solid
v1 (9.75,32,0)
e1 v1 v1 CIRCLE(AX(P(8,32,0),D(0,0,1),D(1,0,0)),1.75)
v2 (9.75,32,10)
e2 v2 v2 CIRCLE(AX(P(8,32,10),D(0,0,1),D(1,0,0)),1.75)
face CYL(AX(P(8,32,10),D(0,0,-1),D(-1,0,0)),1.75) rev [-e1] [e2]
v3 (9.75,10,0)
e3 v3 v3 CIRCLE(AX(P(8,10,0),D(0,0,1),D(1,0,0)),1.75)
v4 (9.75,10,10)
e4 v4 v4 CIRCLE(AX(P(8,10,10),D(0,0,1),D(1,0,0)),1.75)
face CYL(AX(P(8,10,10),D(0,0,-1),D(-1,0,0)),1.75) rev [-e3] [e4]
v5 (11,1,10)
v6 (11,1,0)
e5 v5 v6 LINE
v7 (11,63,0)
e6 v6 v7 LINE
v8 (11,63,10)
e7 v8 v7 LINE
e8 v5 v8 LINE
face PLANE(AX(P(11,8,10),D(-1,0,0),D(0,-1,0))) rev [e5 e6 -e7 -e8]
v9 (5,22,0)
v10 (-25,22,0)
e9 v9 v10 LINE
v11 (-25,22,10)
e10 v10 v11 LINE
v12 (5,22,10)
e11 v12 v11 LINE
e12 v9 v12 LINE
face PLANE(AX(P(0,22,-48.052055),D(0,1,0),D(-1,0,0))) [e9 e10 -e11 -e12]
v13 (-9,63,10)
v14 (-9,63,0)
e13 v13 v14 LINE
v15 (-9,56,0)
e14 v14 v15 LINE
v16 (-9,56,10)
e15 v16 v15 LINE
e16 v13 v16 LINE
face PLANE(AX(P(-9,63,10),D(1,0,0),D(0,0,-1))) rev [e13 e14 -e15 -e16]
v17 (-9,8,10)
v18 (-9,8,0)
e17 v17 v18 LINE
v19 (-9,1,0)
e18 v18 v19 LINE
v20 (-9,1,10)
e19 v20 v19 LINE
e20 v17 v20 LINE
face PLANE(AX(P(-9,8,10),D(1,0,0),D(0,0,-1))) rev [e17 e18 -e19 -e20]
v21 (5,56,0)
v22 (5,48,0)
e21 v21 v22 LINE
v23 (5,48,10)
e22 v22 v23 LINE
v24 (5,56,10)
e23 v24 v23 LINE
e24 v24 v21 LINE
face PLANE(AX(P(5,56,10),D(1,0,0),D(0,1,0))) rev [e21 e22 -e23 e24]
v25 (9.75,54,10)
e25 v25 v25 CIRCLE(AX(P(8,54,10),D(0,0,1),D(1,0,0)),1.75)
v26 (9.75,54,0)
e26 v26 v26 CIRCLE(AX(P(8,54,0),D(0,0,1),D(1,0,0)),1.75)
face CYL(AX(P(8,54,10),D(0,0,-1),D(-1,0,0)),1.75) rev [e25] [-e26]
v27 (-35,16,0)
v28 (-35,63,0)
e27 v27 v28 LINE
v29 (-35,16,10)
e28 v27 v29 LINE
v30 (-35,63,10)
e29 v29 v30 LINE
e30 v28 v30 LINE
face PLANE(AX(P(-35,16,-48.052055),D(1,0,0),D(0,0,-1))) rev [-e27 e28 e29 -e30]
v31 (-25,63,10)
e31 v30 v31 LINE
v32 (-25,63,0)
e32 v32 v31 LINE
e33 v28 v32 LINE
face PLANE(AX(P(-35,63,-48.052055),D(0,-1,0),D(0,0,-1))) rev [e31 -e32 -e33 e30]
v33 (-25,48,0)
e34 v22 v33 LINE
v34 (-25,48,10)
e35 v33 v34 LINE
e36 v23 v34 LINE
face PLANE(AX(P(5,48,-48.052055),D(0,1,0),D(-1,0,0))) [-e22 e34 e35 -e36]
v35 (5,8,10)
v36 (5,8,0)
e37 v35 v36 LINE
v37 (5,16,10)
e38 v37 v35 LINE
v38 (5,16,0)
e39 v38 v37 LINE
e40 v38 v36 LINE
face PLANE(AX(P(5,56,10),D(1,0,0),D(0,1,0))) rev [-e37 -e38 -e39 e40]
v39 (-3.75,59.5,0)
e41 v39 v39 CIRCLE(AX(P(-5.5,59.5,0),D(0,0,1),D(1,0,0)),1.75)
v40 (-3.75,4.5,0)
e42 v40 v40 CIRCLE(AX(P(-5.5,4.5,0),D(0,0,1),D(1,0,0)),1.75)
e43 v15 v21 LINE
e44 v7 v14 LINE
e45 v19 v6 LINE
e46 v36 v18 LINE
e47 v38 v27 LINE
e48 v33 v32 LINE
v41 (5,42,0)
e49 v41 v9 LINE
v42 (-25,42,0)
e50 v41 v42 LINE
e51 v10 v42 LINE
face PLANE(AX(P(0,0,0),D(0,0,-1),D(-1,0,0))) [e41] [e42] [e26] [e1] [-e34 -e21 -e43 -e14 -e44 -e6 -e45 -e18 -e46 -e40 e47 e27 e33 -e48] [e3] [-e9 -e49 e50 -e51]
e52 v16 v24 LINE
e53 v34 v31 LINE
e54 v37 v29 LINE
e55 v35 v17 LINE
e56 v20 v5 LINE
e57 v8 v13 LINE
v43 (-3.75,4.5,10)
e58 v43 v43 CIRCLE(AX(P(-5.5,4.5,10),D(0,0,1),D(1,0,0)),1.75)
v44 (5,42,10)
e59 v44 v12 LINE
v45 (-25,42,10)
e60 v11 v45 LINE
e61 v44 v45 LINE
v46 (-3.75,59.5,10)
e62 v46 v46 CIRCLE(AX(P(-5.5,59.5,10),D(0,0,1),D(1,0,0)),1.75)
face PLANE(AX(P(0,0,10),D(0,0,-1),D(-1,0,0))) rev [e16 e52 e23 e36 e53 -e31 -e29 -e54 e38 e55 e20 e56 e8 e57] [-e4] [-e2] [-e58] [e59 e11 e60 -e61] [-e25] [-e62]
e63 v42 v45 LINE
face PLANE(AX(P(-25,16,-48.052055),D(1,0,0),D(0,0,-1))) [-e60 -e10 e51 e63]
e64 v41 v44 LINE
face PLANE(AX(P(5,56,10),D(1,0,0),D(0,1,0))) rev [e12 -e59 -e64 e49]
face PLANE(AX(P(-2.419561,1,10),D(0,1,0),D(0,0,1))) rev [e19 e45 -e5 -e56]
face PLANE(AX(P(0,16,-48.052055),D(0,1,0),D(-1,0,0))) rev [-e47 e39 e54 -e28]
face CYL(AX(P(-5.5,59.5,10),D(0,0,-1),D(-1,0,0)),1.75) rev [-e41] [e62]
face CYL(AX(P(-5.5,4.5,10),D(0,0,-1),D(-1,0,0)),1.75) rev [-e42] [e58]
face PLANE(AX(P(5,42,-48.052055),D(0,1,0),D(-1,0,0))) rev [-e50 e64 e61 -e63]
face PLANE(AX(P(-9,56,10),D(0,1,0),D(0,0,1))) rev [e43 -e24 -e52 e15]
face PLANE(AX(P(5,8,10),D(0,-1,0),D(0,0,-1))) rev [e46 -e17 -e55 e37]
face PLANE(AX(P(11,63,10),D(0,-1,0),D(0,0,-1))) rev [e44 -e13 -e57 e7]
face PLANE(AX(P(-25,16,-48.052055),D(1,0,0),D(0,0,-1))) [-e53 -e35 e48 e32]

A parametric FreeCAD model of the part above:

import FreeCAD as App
import Part
import Sketcher


def add_polygon(sketch, points):
    """Adds a closed chain of lines whose ends are joined by coincident constraints."""
    first, n = sketch.GeometryCount, len(points)
    for a, b in zip(points, points[1:] + points[:1]):
        sketch.addGeometry(Part.LineSegment(App.Vector(*a, 0), App.Vector(*b, 0)), False)
    for i in range(n):
        sketch.addConstraint(Sketcher.Constraint("Coincident", first + i, 2, first + (i + 1) % n, 1))

doc = App.newDocument("Part")
body = doc.addObject("PartDesign::Body", "Body")

# Sketch on XY plane
sketch1 = doc.addObject("Sketcher::SketchObject", "Sketch")
body.addObject(sketch1)
sketch1.AttachmentSupport = (doc.XY_Plane, [""])
sketch1.MapMode = "FlatFace"
add_polygon(sketch1, [(11, 1), (11, 63), (-9, 63), (-9, 56), (5, 56), (5, 8), (-9, 8), (-9, 1)])  # lines 0-7
sketch1.addGeometry(Part.Circle(App.Vector(-5.5, 4.5, 0), App.Vector(0, 0, 1), 1.8), False)  # 8
sketch1.addGeometry(Part.Circle(App.Vector(8, 10, 0), App.Vector(0, 0, 1), 1.8), False)  # 9
sketch1.addGeometry(Part.Circle(App.Vector(-5.5, 59.5, 0), App.Vector(0, 0, 1), 1.8), False)  # 10
sketch1.addGeometry(Part.Circle(App.Vector(8, 32, 0), App.Vector(0, 0, 1), 1.8), False)  # 11
sketch1.addGeometry(Part.Circle(App.Vector(8, 54, 0), App.Vector(0, 0, 1), 1.8), False)  # 12
sketch1.addConstraint([
    Sketcher.Constraint("Vertical", 0),
    Sketcher.Constraint("Horizontal", 1),
    Sketcher.Constraint("Vertical", 2),
    Sketcher.Constraint("Horizontal", 3),
    Sketcher.Constraint("Vertical", 4),
    Sketcher.Constraint("Horizontal", 5),
    Sketcher.Constraint("Vertical", 6),
    Sketcher.Constraint("Horizontal", 7),
    Sketcher.Constraint("Equal", 8, 9),
    Sketcher.Constraint("Equal", 9, 10),
    Sketcher.Constraint("Equal", 10, 11),
    Sketcher.Constraint("Equal", 11, 12),
    Sketcher.Constraint("Vertical", 8, 3, 10, 3),
    Sketcher.Constraint("Vertical", 9, 3, 11, 3),
    Sketcher.Constraint("Vertical", 11, 3, 12, 3),
    Sketcher.Constraint("Vertical", 2, 2, 5, 2),
    Sketcher.Constraint("Equal", 2, 6),
    Sketcher.Constraint("Diameter", 8, 3.5),
    Sketcher.Constraint("DistanceX", 1, 2, 1, 1, 20.0),
    Sketcher.Constraint("DistanceX", 3, 1, 3, 2, 14.0),
    Sketcher.Constraint("DistanceY", 0, 1, 0, 2, 62.0),
    Sketcher.Constraint("DistanceY", 2, 2, 2, 1, 7.0),
    Sketcher.Constraint("DistanceX", -1, 1, 9, 3, 8.0),
    Sketcher.Constraint("DistanceY", -1, 1, 9, 3, 10.0),
    Sketcher.Constraint("DistanceY", -1, 1, 11, 3, 32.0),
    Sketcher.Constraint("DistanceY", -1, 1, 12, 3, 54.0),
    Sketcher.Constraint("DistanceX", -1, 1, 0, 2, 11.0),
    Sketcher.Constraint("DistanceY", -1, 1, 0, 2, 63.0),
    Sketcher.Constraint("DistanceY", 8, 3, 10, 3, 55.0),
    Sketcher.Constraint("DistanceX", 8, 3, -1, 1, 5.5),
    Sketcher.Constraint("DistanceY", -1, 1, 8, 3, 4.5),
])
pad1 = doc.addObject("PartDesign::Pad", "Pad")
body.addObject(pad1)
pad1.Profile = sketch1
pad1.Length = 10

# Sketch on XY plane
sketch2 = doc.addObject("Sketcher::SketchObject", "Sketch001")
body.addObject(sketch2)
sketch2.AttachmentSupport = (doc.XY_Plane, [""])
sketch2.MapMode = "FlatFace"
sketch2.AttachmentOffset = App.Placement(App.Vector(0, 0, 10), App.Rotation())
add_polygon(sketch2, [(5, 42), (5, 48), (-25, 48), (-25, 63), (-35, 63), (-35, 16), (5, 16), (5, 22), (-25, 22), (-25, 42)])  # lines 0-9
sketch2.addConstraint([
    Sketcher.Constraint("Vertical", 0),
    Sketcher.Constraint("Horizontal", 1),
    Sketcher.Constraint("Vertical", 2),
    Sketcher.Constraint("Horizontal", 3),
    Sketcher.Constraint("Vertical", 4),
    Sketcher.Constraint("Horizontal", 5),
    Sketcher.Constraint("Vertical", 6),
    Sketcher.Constraint("Horizontal", 7),
    Sketcher.Constraint("Vertical", 8),
    Sketcher.Constraint("Horizontal", 9),
    Sketcher.Constraint("Vertical", 0, 2, 5, 2),
    Sketcher.Constraint("Vertical", 2, 2, 7, 2),
    Sketcher.Constraint("Equal", 0, 6),
    Sketcher.Constraint("DistanceX", 1, 2, 1, 1, 30.0),
    Sketcher.Constraint("DistanceX", 3, 2, 3, 1, 10.0),
    Sketcher.Constraint("DistanceY", 0, 1, 0, 2, 6.0),
    Sketcher.Constraint("DistanceY", 2, 1, 2, 2, 15.0),
    Sketcher.Constraint("DistanceY", 4, 2, 4, 1, 47.0),
    Sketcher.Constraint("DistanceX", -1, 1, 0, 2, 5.0),
    Sketcher.Constraint("DistanceY", -1, 1, 0, 2, 48.0),
])
pad2 = doc.addObject("PartDesign::Pad", "Pad001")
body.addObject(pad2)
pad2.Profile = sketch2
pad2.Length = 10
pad2.Reversed = True

doc.recompute()
